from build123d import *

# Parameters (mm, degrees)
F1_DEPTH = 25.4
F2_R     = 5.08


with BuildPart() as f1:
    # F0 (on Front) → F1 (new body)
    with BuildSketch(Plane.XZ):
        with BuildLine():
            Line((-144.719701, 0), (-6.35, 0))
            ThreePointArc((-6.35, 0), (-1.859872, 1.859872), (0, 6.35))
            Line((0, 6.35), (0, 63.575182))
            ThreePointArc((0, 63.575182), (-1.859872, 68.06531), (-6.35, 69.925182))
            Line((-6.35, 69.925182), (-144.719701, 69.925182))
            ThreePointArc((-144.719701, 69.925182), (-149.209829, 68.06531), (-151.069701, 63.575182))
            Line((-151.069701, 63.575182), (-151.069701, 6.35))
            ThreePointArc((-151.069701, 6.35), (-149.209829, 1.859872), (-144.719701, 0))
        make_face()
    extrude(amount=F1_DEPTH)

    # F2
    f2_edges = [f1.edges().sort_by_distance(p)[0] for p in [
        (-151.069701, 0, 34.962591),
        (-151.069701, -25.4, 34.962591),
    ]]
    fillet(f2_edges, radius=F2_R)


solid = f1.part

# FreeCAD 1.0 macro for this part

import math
import FreeCAD as App
import Part
import Sketcher
Q = App.Units.Quantity


def edges_at(feature, points):
    """Names of the edges that pass closest to the given points."""
    edges = feature.Shape.Edges
    near = lambda p: min(range(len(edges)), key=lambda i: edges[i].distToShape(Part.Vertex(*p))[0])
    return sorted({f"Edge{near(p) + 1}" for p in points})

doc = App.newDocument("Part")
body = doc.addObject("PartDesign::Body", "Body")

# Sketch on XZ plane
sketch1 = body.newObject("Sketcher::SketchObject", "Sketch")
sketch1.AttachmentSupport = (doc.getObject("XZ_Plane"), [""])
sketch1.MapMode = "FlatFace"
sketch1.addGeometry([
    Part.LineSegment(App.Vector(-145, 0, 0), App.Vector(-6, 0, 0)),  # 0
    Part.ArcOfCircle(Part.Circle(App.Vector(-6, 6, 0), App.Vector(0, 0, 1), 6), math.radians(-90), math.radians(0)),  # 1
    Part.LineSegment(App.Vector(0, 6, 0), App.Vector(0, 64, 0)),  # 2
    Part.ArcOfCircle(Part.Circle(App.Vector(-6, 64, 0), App.Vector(0, 0, 1), 6), math.radians(0), math.radians(90)),  # 3
    Part.LineSegment(App.Vector(-6, 70, 0), App.Vector(-145, 70, 0)),  # 4
    Part.ArcOfCircle(Part.Circle(App.Vector(-145, 64, 0), App.Vector(0, 0, 1), 6), math.radians(90), math.radians(180)),  # 5
    Part.LineSegment(App.Vector(-151, 64, 0), App.Vector(-151, 6, 0)),  # 6
    Part.ArcOfCircle(Part.Circle(App.Vector(-145, 6, 0), App.Vector(0, 0, 1), 6), math.radians(-180), math.radians(-90)),  # 7
], False)
sketch1.addConstraint([
    Sketcher.Constraint("Tangent", 0, 2, 1, 1),
    Sketcher.Constraint("Tangent", 1, 2, 2, 1),
    Sketcher.Constraint("Tangent", 2, 2, 3, 1),
    Sketcher.Constraint("Tangent", 3, 2, 4, 1),
    Sketcher.Constraint("Tangent", 4, 2, 5, 1),
    Sketcher.Constraint("Tangent", 5, 2, 6, 1),
    Sketcher.Constraint("Tangent", 6, 2, 7, 1),
    Sketcher.Constraint("Tangent", 7, 2, 0, 1),
    Sketcher.Constraint("Horizontal", 0),
    Sketcher.Constraint("Vertical", 2),
    Sketcher.Constraint("Horizontal", 4),
    Sketcher.Constraint("Vertical", 6),
    Sketcher.Constraint("Equal", 1, 3),
    Sketcher.Constraint("Equal", 3, 5),
    Sketcher.Constraint("Equal", 5, 7),
    Sketcher.Constraint("PointOnObject", 0, 2, -1),
    Sketcher.Constraint("PointOnObject", 1, 2, -2),
    Sketcher.Constraint("Radius", 1, Q("0.25 in")),
    Sketcher.Constraint("DistanceX", 0, 1, 0, 2, 138.369701),
    Sketcher.Constraint("DistanceY", 2, 1, 2, 2, 57.225182),
])
pad1 = body.newObject("PartDesign::Pad", "Pad")
pad1.Profile = sketch1
pad1.Length = Q("1 in")
doc.recompute()

fillet = body.newObject("PartDesign::Fillet", "Fillet")
fillet.Base = (pad1, edges_at(pad1, [(-151.07, 0, 34.963), (-151.07, -25.4, 34.963)]))
fillet.Radius = Q("0.2 in")

doc.recompute()
